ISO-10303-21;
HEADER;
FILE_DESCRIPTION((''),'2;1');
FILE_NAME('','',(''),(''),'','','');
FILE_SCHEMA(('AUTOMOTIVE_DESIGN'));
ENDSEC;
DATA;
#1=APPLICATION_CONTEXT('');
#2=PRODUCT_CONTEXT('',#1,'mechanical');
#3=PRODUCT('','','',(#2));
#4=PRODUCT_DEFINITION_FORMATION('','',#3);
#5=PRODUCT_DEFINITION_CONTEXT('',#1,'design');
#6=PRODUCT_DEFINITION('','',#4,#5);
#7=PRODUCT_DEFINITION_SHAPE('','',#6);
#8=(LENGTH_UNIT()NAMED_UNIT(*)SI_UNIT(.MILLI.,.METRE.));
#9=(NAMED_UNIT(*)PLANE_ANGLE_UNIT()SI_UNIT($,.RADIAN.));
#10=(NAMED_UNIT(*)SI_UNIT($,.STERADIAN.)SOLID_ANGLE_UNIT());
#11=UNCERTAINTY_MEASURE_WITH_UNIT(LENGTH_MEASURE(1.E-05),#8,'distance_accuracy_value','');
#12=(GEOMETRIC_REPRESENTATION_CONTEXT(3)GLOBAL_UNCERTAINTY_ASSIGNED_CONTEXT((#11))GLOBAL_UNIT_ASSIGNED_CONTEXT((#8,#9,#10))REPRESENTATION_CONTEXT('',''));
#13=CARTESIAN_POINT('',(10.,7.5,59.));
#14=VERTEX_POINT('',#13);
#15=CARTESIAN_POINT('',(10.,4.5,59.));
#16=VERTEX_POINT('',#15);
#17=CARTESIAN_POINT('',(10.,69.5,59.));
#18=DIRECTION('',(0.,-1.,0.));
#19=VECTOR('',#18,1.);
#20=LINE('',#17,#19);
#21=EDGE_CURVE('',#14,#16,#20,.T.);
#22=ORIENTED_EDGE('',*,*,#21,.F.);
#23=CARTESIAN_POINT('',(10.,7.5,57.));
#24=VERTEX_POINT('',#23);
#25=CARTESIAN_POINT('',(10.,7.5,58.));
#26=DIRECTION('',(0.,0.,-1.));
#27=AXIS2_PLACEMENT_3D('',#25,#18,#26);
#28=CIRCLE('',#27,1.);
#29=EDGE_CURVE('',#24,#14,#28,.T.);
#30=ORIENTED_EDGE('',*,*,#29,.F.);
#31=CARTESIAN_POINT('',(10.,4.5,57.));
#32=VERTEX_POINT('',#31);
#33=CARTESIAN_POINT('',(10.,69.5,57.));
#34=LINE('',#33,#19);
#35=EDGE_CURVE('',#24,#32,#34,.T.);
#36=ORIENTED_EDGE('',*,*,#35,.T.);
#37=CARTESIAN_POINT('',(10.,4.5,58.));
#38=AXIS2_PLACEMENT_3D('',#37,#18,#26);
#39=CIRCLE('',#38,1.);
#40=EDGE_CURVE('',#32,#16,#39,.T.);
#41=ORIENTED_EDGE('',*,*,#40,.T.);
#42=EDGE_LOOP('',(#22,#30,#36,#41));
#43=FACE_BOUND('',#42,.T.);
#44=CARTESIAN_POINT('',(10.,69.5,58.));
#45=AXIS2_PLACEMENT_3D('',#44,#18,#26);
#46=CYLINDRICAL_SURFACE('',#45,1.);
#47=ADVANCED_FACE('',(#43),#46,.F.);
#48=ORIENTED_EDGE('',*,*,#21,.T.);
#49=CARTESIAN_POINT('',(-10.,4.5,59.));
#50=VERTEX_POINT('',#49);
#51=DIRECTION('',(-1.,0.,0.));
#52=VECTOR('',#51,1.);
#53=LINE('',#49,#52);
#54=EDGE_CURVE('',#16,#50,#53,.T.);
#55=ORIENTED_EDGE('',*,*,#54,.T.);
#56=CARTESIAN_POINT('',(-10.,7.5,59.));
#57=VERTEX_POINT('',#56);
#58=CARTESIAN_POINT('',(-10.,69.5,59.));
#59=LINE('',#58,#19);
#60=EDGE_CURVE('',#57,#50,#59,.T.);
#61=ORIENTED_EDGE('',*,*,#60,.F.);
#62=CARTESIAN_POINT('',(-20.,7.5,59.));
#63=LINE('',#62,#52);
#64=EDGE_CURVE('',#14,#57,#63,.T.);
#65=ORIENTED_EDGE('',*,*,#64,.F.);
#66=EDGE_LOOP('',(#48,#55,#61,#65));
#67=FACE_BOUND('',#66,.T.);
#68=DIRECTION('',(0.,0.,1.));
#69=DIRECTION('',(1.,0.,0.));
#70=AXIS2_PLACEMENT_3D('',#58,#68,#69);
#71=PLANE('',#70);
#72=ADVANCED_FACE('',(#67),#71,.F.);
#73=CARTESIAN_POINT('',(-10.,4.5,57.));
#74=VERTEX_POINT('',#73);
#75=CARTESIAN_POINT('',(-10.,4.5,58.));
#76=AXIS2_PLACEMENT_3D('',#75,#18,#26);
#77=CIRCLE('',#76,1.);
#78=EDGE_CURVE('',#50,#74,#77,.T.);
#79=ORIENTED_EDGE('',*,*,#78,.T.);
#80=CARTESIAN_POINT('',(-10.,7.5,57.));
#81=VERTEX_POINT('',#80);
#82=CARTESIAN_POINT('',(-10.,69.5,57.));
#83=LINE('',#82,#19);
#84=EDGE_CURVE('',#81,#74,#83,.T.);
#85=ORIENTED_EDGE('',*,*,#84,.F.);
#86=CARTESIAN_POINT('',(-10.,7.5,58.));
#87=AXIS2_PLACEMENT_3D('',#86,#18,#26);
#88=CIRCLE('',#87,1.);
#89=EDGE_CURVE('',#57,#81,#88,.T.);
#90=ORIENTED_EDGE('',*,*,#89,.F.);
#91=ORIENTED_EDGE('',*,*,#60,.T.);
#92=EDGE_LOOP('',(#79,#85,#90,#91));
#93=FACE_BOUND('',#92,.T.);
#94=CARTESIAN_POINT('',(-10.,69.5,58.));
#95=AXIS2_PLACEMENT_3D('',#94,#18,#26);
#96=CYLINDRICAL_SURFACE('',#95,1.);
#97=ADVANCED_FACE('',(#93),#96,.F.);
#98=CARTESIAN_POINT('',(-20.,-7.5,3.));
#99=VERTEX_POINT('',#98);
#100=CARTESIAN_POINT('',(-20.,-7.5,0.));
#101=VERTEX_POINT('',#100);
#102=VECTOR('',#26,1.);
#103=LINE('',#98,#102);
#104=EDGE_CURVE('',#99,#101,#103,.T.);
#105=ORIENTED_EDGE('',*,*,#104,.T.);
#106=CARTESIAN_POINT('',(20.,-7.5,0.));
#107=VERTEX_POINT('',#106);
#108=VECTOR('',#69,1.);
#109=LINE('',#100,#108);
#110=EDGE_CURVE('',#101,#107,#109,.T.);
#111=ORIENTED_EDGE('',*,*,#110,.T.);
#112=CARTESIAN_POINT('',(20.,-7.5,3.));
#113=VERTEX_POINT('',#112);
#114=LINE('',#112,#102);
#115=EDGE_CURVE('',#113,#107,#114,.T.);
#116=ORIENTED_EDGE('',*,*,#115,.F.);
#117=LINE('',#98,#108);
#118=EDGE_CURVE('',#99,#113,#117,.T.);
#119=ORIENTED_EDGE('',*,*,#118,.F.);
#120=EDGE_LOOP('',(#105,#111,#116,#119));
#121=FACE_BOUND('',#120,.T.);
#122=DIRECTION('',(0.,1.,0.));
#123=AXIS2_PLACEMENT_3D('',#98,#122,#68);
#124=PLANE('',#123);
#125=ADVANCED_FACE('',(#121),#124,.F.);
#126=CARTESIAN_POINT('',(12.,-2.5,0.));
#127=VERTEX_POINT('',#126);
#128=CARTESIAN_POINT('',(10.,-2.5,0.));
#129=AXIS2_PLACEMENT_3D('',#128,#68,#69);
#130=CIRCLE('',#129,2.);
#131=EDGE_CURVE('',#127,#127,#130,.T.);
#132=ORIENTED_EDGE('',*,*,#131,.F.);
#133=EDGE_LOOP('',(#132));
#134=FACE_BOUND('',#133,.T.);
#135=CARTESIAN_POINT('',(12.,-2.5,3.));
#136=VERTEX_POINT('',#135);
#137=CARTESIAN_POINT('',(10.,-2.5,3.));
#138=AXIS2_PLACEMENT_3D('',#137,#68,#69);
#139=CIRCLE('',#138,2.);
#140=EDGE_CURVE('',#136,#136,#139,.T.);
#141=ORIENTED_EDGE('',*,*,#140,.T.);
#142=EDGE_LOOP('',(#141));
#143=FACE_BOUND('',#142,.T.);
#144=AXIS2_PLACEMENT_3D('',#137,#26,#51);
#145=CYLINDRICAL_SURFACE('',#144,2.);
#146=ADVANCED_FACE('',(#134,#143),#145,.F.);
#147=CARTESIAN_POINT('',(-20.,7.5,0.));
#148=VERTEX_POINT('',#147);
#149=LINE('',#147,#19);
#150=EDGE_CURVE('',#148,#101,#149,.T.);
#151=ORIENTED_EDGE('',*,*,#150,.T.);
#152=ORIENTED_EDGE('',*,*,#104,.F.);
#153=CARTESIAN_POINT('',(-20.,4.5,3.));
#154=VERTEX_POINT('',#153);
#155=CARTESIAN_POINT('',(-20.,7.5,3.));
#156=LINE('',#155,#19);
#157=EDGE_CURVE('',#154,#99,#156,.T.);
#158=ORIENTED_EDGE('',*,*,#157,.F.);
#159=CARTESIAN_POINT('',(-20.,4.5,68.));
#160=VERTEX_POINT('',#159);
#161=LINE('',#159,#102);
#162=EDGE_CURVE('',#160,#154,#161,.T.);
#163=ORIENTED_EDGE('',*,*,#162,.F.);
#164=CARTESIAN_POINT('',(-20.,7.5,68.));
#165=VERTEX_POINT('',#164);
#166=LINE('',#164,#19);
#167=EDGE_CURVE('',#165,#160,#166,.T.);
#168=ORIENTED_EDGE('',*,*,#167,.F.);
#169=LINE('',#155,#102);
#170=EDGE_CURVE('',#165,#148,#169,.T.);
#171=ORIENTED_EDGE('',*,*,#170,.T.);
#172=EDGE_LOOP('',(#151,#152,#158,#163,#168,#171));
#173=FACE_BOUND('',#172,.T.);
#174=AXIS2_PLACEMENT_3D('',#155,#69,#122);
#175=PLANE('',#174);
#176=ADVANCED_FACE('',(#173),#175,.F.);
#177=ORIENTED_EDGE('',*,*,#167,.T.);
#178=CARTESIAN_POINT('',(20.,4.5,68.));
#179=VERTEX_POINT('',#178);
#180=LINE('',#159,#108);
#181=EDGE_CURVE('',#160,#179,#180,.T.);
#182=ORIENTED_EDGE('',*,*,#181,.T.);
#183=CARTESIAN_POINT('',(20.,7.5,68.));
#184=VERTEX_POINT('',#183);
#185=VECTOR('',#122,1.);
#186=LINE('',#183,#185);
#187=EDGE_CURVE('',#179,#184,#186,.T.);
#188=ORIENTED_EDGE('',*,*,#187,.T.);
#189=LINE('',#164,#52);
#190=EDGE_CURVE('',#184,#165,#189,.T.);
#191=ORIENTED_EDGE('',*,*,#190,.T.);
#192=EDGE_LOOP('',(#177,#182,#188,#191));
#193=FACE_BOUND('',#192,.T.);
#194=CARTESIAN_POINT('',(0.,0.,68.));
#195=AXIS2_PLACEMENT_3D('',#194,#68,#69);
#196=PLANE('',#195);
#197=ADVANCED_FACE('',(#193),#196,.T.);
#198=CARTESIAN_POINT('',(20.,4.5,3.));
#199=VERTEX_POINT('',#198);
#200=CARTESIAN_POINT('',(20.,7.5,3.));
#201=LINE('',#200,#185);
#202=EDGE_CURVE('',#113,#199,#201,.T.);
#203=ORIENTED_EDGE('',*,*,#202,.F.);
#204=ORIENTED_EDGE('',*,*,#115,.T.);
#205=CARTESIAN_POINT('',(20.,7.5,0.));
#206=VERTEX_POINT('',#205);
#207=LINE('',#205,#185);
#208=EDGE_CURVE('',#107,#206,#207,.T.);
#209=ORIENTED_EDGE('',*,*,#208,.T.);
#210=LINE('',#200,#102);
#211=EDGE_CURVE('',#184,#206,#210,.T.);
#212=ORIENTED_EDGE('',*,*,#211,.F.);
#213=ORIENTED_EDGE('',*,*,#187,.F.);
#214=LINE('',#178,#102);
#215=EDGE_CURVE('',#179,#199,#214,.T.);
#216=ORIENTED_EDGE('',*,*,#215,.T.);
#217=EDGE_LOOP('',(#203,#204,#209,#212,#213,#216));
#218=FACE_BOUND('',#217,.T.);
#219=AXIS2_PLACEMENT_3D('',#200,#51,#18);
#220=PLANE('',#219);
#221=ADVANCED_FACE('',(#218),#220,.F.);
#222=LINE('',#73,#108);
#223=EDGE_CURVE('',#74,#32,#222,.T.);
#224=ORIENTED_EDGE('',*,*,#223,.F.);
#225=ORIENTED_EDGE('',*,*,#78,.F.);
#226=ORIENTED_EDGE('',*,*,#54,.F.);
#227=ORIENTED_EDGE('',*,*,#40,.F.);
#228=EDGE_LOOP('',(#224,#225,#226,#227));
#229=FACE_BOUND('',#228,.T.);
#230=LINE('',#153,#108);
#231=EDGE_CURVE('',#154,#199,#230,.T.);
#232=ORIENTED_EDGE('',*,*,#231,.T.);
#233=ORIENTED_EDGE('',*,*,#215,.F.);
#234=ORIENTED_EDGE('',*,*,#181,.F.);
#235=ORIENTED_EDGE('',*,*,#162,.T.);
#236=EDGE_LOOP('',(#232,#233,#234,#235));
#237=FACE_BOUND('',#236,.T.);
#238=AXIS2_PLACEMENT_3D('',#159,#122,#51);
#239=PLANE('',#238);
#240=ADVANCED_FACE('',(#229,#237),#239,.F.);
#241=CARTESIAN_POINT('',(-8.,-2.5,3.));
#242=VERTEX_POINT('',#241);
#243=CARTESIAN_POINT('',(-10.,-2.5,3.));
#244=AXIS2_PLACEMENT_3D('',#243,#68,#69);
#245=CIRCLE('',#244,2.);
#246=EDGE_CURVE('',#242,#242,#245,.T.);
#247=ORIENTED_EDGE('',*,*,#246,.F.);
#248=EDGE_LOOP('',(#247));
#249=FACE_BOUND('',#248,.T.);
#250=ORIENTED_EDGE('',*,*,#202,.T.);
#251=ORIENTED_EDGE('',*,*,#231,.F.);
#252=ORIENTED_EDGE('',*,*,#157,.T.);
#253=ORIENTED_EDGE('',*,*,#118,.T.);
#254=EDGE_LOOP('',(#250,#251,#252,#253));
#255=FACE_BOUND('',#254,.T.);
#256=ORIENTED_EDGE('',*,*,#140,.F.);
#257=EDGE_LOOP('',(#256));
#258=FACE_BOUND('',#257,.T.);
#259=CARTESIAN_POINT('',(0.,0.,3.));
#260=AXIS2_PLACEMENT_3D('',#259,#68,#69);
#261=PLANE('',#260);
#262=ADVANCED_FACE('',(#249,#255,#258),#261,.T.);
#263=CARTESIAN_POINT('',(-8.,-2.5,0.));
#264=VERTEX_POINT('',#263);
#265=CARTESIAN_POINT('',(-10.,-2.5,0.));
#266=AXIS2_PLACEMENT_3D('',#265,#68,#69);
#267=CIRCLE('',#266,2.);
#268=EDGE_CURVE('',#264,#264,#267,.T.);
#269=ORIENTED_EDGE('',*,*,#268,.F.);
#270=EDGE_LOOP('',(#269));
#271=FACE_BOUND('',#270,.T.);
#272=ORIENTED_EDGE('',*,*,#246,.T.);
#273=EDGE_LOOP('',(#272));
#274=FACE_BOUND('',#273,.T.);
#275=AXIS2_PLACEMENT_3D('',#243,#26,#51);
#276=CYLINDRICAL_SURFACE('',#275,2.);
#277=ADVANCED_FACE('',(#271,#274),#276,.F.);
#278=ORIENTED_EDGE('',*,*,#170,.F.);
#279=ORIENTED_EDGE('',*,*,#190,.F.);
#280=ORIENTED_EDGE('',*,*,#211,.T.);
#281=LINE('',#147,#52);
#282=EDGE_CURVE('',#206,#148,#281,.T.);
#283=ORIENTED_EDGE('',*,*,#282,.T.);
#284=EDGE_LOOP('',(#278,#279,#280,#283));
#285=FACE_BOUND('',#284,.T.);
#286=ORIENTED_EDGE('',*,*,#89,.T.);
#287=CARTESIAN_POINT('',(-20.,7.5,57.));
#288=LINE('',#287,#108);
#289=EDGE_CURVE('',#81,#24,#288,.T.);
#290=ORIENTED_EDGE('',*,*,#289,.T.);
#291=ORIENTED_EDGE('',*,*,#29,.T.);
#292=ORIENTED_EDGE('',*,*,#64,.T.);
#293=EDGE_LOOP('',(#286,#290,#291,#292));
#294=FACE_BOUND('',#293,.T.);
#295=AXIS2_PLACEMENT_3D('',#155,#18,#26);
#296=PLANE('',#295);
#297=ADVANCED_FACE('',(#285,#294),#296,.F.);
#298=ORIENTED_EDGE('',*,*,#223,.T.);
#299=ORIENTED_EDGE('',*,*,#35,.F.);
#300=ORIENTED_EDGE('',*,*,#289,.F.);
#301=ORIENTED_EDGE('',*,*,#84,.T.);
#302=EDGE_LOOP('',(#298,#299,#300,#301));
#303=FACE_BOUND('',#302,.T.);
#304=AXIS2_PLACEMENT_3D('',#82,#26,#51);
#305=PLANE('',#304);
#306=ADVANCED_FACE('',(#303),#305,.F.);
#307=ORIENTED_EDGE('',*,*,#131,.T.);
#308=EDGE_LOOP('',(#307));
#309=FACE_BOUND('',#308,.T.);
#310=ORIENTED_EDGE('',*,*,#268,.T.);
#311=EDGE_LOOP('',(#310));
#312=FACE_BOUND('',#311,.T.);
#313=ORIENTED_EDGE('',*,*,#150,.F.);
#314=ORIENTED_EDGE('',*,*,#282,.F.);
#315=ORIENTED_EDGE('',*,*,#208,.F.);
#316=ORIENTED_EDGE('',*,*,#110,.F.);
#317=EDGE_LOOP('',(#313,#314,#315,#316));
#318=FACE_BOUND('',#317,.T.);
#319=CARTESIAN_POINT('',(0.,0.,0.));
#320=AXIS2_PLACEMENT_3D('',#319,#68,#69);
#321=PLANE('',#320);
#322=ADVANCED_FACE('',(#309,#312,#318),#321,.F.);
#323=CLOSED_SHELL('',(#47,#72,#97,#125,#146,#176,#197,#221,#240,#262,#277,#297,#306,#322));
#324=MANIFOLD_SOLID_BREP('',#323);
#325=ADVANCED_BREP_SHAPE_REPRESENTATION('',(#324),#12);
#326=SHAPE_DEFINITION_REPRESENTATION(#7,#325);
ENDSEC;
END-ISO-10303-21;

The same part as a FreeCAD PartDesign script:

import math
import FreeCAD as App
import Part
import Sketcher

V = App.Vector
Q = App.Units.Quantity

doc = App.newDocument("Part")
body = doc.addObject("PartDesign::Body", "Body")

sketch1 = body.newObject("Sketcher::SketchObject", "Sketch")
sketch1.AttachmentSupport = (doc.getObject("XY_Plane"), [""])
sketch1.MapMode = "FlatFace"
sketch1.addGeometry(Part.LineSegment(V(-20, 7.5, 0), V(-20, -7.5, 0)), False)
sketch1.addGeometry(Part.LineSegment(V(-20, -7.5, 0), V(20, -7.5, 0)), False)
sketch1.addGeometry(Part.LineSegment(V(20, -7.5, 0), V(20, 7.5, 0)), False)
sketch1.addGeometry(Part.LineSegment(V(20, 7.5, 0), V(-20, 7.5, 0)), False)
sketch1.addGeometry(Part.Circle(V(-10, -2.5, 0), V(0, 0, 1), 2), False)
sketch1.addGeometry(Part.Circle(V(10, -2.5, 0), V(0, 0, 1), 2), False)
sketch1.addConstraint(Sketcher.Constraint("Coincident", 0, 2, 1, 1))
sketch1.addConstraint(Sketcher.Constraint("Coincident", 1, 2, 2, 1))
sketch1.addConstraint(Sketcher.Constraint("Coincident", 2, 2, 3, 1))
sketch1.addConstraint(Sketcher.Constraint("Coincident", 3, 2, 0, 1))
sketch1.addConstraint(Sketcher.Constraint("Vertical", 0))
sketch1.addConstraint(Sketcher.Constraint("Horizontal", 1))
sketch1.addConstraint(Sketcher.Constraint("Vertical", 2))
sketch1.addConstraint(Sketcher.Constraint("Horizontal", 3))
sketch1.addConstraint(Sketcher.Constraint("Equal", 4, 5))
sketch1.addConstraint(Sketcher.Constraint("Symmetric", 0, 2, 2, 2, -1, 1))
sketch1.addConstraint(Sketcher.Constraint("Symmetric", 4, 3, 5, 3, -2))
sketch1.addConstraint(Sketcher.Constraint("Diameter", 4, Q("4 mm")))
sketch1.addConstraint(Sketcher.Constraint("DistanceX", 1, 1, 1, 2, Q("40 mm")))
sketch1.addConstraint(Sketcher.Constraint("DistanceY", 0, 2, 0, 1, Q("15 mm")))
sketch1.addConstraint(Sketcher.Constraint("DistanceX", 4, 3, -1, 1, Q("10 mm")))
sketch1.addConstraint(Sketcher.Constraint("DistanceY", 0, 2, 4, 3, Q("5 mm")))
pad1 = body.newObject("PartDesign::Pad", "Pad")
pad1.Profile = sketch1
pad1.Length = 3

sketch2 = body.newObject("Sketcher::SketchObject", "Sketch001")
sketch2.AttachmentSupport = (doc.getObject("XY_Plane"), [""])
sketch2.MapMode = "FlatFace"
sketch2.AttachmentOffset = App.Placement(V(0, 0, 3), App.Rotation())
sketch2.addGeometry(Part.LineSegment(V(-20, 7.5, 0), V(-20, 4.5, 0)), False)
sketch2.addGeometry(Part.LineSegment(V(-20, 4.5, 0), V(20, 4.5, 0)), False)
sketch2.addGeometry(Part.LineSegment(V(20, 4.5, 0), V(20, 7.5, 0)), False)
sketch2.addGeometry(Part.LineSegment(V(20, 7.5, 0), V(-20, 7.5, 0)), False)
sketch2.addConstraint(Sketcher.Constraint("Coincident", 0, 2, 1, 1))
sketch2.addConstraint(Sketcher.Constraint("Coincident", 1, 2, 2, 1))
sketch2.addConstraint(Sketcher.Constraint("Coincident", 2, 2, 3, 1))
sketch2.addConstraint(Sketcher.Constraint("Coincident", 3, 2, 0, 1))
sketch2.addConstraint(Sketcher.Constraint("Vertical", 0))
sketch2.addConstraint(Sketcher.Constraint("Horizontal", 1))
sketch2.addConstraint(Sketcher.Constraint("Vertical", 2))
sketch2.addConstraint(Sketcher.Constraint("Horizontal", 3))
sketch2.addConstraint(Sketcher.Constraint("DistanceX", 1, 1, 1, 2, Q("40 mm")))
sketch2.addConstraint(Sketcher.Constraint("DistanceY", 0, 2, 0, 1, Q("3 mm")))
sketch2.addConstraint(Sketcher.Constraint("DistanceX", 0, 2, -1, 1, Q("20 mm")))
sketch2.addConstraint(Sketcher.Constraint("DistanceY", -1, 1, 0, 2, Q("4.5 mm")))
pad2 = body.newObject("PartDesign::Pad", "Pad001")
pad2.Profile = sketch2
pad2.Length = 65

sketch3 = body.newObject("Sketcher::SketchObject", "Sketch002")
sketch3.AttachmentSupport = (doc.getObject("XZ_Plane"), [""])
sketch3.MapMode = "FlatFace"
sketch3.AttachmentOffset = App.Placement(V(0, 0, -4.5), App.Rotation())
sketch3.addGeometry(Part.LineSegment(V(10, 59, 0), V(-10, 59, 0)), False)
sketch3.addGeometry(Part.ArcOfCircle(Part.Circle(V(-10, 58, 0), V(0, 0, 1), 1), math.radians(90), math.radians(270)), False)
sketch3.addGeometry(Part.LineSegment(V(-10, 57, 0), V(10, 57, 0)), False)
sketch3.addGeometry(Part.ArcOfCircle(Part.Circle(V(10, 58, 0), V(0, 0, 1), 1), math.radians(-90), math.radians(90)), False)
sketch3.addConstraint(Sketcher.Constraint("Tangent", 0, 2, 1, 1))
sketch3.addConstraint(Sketcher.Constraint("Tangent", 1, 2, 2, 1))
sketch3.addConstraint(Sketcher.Constraint("Tangent", 2, 2, 3, 1))
sketch3.addConstraint(Sketcher.Constraint("Tangent", 3, 2, 0, 1))
sketch3.addConstraint(Sketcher.Constraint("Horizontal", 0))
sketch3.addConstraint(Sketcher.Constraint("Horizontal", 2))
sketch3.addConstraint(Sketcher.Constraint("Radius", 1, Q("1 mm")))
sketch3.addConstraint(Sketcher.Constraint("DistanceX", 0, 2, 0, 1, Q("20 mm")))
sketch3.addConstraint(Sketcher.Constraint("DistanceX", 1, 3, -1, 1, Q("10 mm")))
sketch3.addConstraint(Sketcher.Constraint("DistanceY", -1, 1, 1, 3, Q("58 mm")))
pocket1 = body.newObject("PartDesign::Pocket", "Pocket")
pocket1.Profile = sketch3
pocket1.Length = 65

doc.recompute()
